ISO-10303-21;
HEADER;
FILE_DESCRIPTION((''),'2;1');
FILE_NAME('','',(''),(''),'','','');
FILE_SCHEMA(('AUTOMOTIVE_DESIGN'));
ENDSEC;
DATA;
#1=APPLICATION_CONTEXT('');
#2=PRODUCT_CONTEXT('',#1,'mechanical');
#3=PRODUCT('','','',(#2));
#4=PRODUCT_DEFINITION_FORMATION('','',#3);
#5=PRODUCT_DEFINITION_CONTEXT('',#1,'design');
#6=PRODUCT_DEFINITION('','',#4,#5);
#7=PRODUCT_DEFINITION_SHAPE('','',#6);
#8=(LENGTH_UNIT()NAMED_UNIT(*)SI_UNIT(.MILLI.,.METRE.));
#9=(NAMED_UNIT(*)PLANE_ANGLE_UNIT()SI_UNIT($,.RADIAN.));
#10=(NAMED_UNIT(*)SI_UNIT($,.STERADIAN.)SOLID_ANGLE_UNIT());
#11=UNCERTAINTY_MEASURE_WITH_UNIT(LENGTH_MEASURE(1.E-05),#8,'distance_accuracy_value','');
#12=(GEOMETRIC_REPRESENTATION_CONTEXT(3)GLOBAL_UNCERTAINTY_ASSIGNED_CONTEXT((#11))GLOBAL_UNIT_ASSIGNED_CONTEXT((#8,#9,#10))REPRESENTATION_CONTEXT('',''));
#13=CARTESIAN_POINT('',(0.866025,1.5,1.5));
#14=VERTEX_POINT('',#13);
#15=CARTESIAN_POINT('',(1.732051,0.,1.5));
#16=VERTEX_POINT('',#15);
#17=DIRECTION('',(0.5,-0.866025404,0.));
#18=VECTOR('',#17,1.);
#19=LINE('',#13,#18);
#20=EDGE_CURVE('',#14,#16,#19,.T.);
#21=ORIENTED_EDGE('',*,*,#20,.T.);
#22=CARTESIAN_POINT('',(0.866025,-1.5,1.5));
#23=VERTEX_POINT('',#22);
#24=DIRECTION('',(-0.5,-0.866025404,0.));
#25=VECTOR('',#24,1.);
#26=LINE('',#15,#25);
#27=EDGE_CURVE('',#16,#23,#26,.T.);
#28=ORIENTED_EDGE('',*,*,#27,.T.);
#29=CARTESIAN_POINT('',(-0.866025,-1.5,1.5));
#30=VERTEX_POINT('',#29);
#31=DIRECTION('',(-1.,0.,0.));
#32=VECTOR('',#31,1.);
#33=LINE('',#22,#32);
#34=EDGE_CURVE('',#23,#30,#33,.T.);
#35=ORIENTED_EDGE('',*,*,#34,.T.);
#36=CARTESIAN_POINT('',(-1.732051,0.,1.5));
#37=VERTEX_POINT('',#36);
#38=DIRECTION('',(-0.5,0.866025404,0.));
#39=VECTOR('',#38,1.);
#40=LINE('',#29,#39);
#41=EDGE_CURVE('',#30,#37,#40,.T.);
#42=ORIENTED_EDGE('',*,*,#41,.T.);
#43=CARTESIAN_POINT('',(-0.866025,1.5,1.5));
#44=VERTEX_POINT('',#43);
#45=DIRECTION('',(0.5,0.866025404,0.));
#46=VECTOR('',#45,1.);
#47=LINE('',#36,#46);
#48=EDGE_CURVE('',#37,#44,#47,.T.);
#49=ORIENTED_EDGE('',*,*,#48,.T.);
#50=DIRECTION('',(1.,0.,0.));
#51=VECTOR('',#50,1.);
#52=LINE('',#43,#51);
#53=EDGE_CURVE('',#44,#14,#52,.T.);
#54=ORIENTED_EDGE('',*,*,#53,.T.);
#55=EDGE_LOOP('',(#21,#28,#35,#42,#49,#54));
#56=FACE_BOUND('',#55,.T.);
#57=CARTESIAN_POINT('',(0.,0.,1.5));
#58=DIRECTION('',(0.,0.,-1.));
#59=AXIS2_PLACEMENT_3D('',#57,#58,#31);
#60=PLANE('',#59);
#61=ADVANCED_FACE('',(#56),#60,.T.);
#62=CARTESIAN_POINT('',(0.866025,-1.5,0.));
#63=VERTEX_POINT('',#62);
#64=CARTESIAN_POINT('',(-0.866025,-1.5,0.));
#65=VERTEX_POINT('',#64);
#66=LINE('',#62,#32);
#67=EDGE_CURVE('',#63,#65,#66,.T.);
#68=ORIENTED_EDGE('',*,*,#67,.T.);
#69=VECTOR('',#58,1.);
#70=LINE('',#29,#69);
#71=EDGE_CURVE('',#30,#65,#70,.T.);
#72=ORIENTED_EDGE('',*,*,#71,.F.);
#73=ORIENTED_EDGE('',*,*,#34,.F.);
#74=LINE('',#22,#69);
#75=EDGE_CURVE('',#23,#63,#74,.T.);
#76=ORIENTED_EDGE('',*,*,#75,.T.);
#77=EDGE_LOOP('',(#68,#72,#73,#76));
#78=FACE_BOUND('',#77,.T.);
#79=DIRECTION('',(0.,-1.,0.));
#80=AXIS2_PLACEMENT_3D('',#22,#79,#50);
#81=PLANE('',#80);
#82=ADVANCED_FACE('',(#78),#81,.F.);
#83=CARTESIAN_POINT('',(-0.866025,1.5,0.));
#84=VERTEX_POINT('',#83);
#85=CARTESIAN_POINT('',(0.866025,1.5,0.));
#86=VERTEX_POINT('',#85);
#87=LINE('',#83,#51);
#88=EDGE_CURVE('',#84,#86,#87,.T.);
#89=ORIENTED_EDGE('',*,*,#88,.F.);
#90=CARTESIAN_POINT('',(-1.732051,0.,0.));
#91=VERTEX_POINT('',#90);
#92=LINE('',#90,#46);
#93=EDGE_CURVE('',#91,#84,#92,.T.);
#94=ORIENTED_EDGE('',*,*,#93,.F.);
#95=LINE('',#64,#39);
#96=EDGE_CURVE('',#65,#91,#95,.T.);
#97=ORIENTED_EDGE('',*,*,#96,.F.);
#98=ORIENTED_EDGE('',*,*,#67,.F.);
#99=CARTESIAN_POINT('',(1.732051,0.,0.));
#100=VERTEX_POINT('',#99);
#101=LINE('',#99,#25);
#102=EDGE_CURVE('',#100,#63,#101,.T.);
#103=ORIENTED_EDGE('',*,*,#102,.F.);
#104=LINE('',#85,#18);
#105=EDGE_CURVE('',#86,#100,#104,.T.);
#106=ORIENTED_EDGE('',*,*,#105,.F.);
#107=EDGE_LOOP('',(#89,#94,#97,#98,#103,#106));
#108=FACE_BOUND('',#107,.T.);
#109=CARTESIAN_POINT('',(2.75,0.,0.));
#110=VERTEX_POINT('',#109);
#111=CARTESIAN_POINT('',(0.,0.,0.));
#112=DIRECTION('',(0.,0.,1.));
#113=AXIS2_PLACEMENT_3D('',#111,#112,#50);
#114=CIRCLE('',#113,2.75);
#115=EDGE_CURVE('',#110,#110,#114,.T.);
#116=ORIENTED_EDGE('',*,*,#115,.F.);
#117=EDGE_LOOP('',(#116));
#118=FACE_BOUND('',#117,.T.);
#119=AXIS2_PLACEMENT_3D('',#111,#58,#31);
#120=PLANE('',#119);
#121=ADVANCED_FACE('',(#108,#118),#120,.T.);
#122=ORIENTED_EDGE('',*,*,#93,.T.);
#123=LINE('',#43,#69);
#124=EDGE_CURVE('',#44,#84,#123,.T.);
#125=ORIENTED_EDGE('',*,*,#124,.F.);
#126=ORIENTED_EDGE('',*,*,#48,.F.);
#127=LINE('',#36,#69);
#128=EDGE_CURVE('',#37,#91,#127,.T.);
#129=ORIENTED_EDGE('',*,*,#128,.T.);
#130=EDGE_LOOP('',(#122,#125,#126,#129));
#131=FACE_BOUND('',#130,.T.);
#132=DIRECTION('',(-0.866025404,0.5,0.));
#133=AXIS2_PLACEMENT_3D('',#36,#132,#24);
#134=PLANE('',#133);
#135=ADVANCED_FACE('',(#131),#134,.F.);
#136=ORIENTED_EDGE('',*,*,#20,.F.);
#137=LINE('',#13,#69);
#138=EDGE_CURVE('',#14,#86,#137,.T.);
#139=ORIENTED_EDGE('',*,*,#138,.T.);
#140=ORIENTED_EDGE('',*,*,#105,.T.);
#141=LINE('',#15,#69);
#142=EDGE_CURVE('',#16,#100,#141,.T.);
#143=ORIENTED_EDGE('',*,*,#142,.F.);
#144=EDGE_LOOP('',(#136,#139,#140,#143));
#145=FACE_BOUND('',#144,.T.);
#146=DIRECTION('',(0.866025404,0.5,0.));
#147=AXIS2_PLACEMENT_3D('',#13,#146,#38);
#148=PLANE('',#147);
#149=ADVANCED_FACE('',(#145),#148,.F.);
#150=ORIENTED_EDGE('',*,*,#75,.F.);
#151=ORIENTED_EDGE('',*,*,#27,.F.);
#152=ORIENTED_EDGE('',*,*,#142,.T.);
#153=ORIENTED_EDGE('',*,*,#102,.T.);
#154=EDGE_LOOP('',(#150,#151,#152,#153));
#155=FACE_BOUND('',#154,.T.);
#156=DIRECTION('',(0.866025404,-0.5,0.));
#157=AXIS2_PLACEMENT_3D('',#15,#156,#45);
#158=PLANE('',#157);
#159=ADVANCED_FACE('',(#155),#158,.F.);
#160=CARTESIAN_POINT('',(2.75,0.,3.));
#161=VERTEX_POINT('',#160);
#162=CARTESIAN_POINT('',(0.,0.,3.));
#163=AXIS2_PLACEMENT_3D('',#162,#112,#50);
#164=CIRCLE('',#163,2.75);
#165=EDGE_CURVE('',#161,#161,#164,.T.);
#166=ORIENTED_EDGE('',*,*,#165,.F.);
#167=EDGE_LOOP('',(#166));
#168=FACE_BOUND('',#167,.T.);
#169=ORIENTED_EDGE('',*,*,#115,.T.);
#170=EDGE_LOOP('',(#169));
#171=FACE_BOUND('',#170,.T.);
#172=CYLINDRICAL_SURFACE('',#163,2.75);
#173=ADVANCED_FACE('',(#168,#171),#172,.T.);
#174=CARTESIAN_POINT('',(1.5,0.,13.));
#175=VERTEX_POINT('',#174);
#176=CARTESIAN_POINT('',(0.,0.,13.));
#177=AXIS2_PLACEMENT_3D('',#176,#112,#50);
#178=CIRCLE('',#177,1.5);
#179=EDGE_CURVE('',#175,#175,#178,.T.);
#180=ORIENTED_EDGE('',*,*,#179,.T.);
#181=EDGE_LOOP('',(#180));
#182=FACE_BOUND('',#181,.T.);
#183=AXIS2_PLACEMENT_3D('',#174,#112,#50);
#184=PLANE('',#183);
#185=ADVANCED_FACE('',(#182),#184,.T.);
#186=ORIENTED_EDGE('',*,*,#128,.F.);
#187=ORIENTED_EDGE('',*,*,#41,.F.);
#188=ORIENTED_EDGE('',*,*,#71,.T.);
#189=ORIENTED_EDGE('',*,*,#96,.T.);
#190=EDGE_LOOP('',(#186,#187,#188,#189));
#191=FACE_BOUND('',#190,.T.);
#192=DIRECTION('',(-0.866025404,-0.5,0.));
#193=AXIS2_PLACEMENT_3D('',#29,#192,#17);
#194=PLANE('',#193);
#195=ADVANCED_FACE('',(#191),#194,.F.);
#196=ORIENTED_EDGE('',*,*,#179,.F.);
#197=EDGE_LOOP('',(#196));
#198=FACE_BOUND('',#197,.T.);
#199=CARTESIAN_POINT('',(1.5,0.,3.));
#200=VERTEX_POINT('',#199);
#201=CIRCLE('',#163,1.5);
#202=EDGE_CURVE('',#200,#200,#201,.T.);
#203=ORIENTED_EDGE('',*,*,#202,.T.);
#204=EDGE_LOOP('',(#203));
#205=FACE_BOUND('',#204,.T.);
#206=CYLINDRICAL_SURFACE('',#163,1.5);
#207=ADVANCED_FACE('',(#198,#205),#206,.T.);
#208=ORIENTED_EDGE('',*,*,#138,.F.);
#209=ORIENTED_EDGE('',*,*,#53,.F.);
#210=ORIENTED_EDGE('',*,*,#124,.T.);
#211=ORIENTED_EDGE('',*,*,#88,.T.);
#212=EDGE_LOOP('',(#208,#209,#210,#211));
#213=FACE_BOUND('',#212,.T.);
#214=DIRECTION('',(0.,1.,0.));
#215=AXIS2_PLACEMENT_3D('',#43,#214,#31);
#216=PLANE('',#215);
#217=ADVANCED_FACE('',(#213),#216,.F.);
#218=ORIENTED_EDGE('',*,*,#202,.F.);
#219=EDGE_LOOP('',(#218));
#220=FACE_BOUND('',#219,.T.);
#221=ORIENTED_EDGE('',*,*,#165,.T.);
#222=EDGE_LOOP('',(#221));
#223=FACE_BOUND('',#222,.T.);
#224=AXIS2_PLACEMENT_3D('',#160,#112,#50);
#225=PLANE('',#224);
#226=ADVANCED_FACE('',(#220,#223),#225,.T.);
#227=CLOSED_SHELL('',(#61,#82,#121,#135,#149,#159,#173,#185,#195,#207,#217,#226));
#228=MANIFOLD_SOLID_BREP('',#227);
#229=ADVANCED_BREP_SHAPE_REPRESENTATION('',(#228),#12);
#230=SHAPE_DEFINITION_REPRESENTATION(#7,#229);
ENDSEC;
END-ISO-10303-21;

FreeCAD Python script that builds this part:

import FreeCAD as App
import Part
import Sketcher
from FreeCAD import Vector
Q = App.Units.Quantity

doc = App.newDocument("Part")
body = doc.addObject("PartDesign::Body", "Body")

# Sketch on XZ plane
sketch1 = body.newObject("Sketcher::SketchObject", "Sketch")
sketch1.AttachmentSupport = (doc.getObject("XZ_Plane"), [""])
sketch1.MapMode = "FlatFace"
sketch1.addGeometry([
    Part.LineSegment(Vector(2.8, 0, 0), Vector(0, 0, 0)),  # 0
    Part.LineSegment(Vector(0, 0, 0), Vector(0, 13, 0)),  # 1
    Part.LineSegment(Vector(0, 13, 0), Vector(1.5, 13, 0)),  # 2
    Part.LineSegment(Vector(1.5, 13, 0), Vector(1.5, 3, 0)),  # 3
    Part.LineSegment(Vector(1.5, 3, 0), Vector(2.8, 3, 0)),  # 4
    Part.LineSegment(Vector(2.8, 3, 0), Vector(2.8, 0, 0)),  # 5
], False)
sketch1.addConstraint([
    Sketcher.Constraint("Coincident", 0, 2, 1, 1),
    Sketcher.Constraint("Coincident", 1, 2, 2, 1),
    Sketcher.Constraint("Coincident", 2, 2, 3, 1),
    Sketcher.Constraint("Coincident", 3, 2, 4, 1),
    Sketcher.Constraint("Coincident", 4, 2, 5, 1),
    Sketcher.Constraint("Coincident", 5, 2, 0, 1),
    Sketcher.Constraint("Horizontal", 0),
    Sketcher.Constraint("Vertical", 1),
    Sketcher.Constraint("Horizontal", 2),
    Sketcher.Constraint("Vertical", 3),
    Sketcher.Constraint("Horizontal", 4),
    Sketcher.Constraint("Vertical", 5),
    Sketcher.Constraint("Coincident", 0, 2, -1, 1),
    Sketcher.Constraint("DistanceY", 1, 1, 1, 2, 13.0),
    Sketcher.Constraint("DistanceY", 3, 2, 3, 1, 10.0),
    Sketcher.Constraint("DistanceX", 2, 1, 2, 2, 1.5),
    Sketcher.Constraint("DistanceX", 0, 2, 0, 1, 2.75),
])
revolution = body.newObject("PartDesign::Revolution", "Revolution")
revolution.Profile = sketch1
revolution.ReferenceAxis = (sketch1, ["V_Axis"])
revolution.Angle = 360

# Sketch on XY plane
sketch2 = body.newObject("Sketcher::SketchObject", "Sketch001")
sketch2.AttachmentSupport = (doc.getObject("XY_Plane"), [""])
sketch2.MapMode = "FlatFace"
sketch2.addGeometry([
    Part.LineSegment(Vector(-1.7, 0, 0), Vector(-0.9, 1.5, 0)),  # 0
    Part.LineSegment(Vector(-0.9, 1.5, 0), Vector(0.9, 1.5, 0)),  # 1
    Part.LineSegment(Vector(0.9, 1.5, 0), Vector(1.7, 0, 0)),  # 2
    Part.LineSegment(Vector(1.7, 0, 0), Vector(0.9, -1.5, 0)),  # 3
    Part.LineSegment(Vector(0.9, -1.5, 0), Vector(-0.9, -1.5, 0)),  # 4
    Part.LineSegment(Vector(-0.9, -1.5, 0), Vector(-1.7, 0, 0)),  # 5
], False)
sketch2.addConstraint([
    Sketcher.Constraint("Coincident", 0, 2, 1, 1),
    Sketcher.Constraint("Coincident", 1, 2, 2, 1),
    Sketcher.Constraint("Coincident", 2, 2, 3, 1),
    Sketcher.Constraint("Coincident", 3, 2, 4, 1),
    Sketcher.Constraint("Coincident", 4, 2, 5, 1),
    Sketcher.Constraint("Coincident", 5, 2, 0, 1),
    Sketcher.Constraint("Horizontal", 1),
    Sketcher.Constraint("Horizontal", 4),
    Sketcher.Constraint("Symmetric", 0, 2, 3, 2, -1, 1),
    Sketcher.Constraint("Symmetric", 2, 2, 5, 2, -1, 1),
    Sketcher.Constraint("PointOnObject", 2, 2, -1),
    Sketcher.Constraint("Parallel", 2, 5),
    Sketcher.Constraint("Vertical", 1, 2, 3, 2),
    Sketcher.Constraint("Angle", 0, Q("60 deg")),
    Sketcher.Constraint("DistanceY", 3, 2, 1, 2, 3.0),
    Sketcher.Constraint("DistanceX", 1, 1, 1, 2, 1.732051),
])
pocket1 = body.newObject("PartDesign::Pocket", "Pocket")
pocket1.Profile = sketch2
pocket1.Length = 1.5
pocket1.Reversed = True

doc.recompute()
